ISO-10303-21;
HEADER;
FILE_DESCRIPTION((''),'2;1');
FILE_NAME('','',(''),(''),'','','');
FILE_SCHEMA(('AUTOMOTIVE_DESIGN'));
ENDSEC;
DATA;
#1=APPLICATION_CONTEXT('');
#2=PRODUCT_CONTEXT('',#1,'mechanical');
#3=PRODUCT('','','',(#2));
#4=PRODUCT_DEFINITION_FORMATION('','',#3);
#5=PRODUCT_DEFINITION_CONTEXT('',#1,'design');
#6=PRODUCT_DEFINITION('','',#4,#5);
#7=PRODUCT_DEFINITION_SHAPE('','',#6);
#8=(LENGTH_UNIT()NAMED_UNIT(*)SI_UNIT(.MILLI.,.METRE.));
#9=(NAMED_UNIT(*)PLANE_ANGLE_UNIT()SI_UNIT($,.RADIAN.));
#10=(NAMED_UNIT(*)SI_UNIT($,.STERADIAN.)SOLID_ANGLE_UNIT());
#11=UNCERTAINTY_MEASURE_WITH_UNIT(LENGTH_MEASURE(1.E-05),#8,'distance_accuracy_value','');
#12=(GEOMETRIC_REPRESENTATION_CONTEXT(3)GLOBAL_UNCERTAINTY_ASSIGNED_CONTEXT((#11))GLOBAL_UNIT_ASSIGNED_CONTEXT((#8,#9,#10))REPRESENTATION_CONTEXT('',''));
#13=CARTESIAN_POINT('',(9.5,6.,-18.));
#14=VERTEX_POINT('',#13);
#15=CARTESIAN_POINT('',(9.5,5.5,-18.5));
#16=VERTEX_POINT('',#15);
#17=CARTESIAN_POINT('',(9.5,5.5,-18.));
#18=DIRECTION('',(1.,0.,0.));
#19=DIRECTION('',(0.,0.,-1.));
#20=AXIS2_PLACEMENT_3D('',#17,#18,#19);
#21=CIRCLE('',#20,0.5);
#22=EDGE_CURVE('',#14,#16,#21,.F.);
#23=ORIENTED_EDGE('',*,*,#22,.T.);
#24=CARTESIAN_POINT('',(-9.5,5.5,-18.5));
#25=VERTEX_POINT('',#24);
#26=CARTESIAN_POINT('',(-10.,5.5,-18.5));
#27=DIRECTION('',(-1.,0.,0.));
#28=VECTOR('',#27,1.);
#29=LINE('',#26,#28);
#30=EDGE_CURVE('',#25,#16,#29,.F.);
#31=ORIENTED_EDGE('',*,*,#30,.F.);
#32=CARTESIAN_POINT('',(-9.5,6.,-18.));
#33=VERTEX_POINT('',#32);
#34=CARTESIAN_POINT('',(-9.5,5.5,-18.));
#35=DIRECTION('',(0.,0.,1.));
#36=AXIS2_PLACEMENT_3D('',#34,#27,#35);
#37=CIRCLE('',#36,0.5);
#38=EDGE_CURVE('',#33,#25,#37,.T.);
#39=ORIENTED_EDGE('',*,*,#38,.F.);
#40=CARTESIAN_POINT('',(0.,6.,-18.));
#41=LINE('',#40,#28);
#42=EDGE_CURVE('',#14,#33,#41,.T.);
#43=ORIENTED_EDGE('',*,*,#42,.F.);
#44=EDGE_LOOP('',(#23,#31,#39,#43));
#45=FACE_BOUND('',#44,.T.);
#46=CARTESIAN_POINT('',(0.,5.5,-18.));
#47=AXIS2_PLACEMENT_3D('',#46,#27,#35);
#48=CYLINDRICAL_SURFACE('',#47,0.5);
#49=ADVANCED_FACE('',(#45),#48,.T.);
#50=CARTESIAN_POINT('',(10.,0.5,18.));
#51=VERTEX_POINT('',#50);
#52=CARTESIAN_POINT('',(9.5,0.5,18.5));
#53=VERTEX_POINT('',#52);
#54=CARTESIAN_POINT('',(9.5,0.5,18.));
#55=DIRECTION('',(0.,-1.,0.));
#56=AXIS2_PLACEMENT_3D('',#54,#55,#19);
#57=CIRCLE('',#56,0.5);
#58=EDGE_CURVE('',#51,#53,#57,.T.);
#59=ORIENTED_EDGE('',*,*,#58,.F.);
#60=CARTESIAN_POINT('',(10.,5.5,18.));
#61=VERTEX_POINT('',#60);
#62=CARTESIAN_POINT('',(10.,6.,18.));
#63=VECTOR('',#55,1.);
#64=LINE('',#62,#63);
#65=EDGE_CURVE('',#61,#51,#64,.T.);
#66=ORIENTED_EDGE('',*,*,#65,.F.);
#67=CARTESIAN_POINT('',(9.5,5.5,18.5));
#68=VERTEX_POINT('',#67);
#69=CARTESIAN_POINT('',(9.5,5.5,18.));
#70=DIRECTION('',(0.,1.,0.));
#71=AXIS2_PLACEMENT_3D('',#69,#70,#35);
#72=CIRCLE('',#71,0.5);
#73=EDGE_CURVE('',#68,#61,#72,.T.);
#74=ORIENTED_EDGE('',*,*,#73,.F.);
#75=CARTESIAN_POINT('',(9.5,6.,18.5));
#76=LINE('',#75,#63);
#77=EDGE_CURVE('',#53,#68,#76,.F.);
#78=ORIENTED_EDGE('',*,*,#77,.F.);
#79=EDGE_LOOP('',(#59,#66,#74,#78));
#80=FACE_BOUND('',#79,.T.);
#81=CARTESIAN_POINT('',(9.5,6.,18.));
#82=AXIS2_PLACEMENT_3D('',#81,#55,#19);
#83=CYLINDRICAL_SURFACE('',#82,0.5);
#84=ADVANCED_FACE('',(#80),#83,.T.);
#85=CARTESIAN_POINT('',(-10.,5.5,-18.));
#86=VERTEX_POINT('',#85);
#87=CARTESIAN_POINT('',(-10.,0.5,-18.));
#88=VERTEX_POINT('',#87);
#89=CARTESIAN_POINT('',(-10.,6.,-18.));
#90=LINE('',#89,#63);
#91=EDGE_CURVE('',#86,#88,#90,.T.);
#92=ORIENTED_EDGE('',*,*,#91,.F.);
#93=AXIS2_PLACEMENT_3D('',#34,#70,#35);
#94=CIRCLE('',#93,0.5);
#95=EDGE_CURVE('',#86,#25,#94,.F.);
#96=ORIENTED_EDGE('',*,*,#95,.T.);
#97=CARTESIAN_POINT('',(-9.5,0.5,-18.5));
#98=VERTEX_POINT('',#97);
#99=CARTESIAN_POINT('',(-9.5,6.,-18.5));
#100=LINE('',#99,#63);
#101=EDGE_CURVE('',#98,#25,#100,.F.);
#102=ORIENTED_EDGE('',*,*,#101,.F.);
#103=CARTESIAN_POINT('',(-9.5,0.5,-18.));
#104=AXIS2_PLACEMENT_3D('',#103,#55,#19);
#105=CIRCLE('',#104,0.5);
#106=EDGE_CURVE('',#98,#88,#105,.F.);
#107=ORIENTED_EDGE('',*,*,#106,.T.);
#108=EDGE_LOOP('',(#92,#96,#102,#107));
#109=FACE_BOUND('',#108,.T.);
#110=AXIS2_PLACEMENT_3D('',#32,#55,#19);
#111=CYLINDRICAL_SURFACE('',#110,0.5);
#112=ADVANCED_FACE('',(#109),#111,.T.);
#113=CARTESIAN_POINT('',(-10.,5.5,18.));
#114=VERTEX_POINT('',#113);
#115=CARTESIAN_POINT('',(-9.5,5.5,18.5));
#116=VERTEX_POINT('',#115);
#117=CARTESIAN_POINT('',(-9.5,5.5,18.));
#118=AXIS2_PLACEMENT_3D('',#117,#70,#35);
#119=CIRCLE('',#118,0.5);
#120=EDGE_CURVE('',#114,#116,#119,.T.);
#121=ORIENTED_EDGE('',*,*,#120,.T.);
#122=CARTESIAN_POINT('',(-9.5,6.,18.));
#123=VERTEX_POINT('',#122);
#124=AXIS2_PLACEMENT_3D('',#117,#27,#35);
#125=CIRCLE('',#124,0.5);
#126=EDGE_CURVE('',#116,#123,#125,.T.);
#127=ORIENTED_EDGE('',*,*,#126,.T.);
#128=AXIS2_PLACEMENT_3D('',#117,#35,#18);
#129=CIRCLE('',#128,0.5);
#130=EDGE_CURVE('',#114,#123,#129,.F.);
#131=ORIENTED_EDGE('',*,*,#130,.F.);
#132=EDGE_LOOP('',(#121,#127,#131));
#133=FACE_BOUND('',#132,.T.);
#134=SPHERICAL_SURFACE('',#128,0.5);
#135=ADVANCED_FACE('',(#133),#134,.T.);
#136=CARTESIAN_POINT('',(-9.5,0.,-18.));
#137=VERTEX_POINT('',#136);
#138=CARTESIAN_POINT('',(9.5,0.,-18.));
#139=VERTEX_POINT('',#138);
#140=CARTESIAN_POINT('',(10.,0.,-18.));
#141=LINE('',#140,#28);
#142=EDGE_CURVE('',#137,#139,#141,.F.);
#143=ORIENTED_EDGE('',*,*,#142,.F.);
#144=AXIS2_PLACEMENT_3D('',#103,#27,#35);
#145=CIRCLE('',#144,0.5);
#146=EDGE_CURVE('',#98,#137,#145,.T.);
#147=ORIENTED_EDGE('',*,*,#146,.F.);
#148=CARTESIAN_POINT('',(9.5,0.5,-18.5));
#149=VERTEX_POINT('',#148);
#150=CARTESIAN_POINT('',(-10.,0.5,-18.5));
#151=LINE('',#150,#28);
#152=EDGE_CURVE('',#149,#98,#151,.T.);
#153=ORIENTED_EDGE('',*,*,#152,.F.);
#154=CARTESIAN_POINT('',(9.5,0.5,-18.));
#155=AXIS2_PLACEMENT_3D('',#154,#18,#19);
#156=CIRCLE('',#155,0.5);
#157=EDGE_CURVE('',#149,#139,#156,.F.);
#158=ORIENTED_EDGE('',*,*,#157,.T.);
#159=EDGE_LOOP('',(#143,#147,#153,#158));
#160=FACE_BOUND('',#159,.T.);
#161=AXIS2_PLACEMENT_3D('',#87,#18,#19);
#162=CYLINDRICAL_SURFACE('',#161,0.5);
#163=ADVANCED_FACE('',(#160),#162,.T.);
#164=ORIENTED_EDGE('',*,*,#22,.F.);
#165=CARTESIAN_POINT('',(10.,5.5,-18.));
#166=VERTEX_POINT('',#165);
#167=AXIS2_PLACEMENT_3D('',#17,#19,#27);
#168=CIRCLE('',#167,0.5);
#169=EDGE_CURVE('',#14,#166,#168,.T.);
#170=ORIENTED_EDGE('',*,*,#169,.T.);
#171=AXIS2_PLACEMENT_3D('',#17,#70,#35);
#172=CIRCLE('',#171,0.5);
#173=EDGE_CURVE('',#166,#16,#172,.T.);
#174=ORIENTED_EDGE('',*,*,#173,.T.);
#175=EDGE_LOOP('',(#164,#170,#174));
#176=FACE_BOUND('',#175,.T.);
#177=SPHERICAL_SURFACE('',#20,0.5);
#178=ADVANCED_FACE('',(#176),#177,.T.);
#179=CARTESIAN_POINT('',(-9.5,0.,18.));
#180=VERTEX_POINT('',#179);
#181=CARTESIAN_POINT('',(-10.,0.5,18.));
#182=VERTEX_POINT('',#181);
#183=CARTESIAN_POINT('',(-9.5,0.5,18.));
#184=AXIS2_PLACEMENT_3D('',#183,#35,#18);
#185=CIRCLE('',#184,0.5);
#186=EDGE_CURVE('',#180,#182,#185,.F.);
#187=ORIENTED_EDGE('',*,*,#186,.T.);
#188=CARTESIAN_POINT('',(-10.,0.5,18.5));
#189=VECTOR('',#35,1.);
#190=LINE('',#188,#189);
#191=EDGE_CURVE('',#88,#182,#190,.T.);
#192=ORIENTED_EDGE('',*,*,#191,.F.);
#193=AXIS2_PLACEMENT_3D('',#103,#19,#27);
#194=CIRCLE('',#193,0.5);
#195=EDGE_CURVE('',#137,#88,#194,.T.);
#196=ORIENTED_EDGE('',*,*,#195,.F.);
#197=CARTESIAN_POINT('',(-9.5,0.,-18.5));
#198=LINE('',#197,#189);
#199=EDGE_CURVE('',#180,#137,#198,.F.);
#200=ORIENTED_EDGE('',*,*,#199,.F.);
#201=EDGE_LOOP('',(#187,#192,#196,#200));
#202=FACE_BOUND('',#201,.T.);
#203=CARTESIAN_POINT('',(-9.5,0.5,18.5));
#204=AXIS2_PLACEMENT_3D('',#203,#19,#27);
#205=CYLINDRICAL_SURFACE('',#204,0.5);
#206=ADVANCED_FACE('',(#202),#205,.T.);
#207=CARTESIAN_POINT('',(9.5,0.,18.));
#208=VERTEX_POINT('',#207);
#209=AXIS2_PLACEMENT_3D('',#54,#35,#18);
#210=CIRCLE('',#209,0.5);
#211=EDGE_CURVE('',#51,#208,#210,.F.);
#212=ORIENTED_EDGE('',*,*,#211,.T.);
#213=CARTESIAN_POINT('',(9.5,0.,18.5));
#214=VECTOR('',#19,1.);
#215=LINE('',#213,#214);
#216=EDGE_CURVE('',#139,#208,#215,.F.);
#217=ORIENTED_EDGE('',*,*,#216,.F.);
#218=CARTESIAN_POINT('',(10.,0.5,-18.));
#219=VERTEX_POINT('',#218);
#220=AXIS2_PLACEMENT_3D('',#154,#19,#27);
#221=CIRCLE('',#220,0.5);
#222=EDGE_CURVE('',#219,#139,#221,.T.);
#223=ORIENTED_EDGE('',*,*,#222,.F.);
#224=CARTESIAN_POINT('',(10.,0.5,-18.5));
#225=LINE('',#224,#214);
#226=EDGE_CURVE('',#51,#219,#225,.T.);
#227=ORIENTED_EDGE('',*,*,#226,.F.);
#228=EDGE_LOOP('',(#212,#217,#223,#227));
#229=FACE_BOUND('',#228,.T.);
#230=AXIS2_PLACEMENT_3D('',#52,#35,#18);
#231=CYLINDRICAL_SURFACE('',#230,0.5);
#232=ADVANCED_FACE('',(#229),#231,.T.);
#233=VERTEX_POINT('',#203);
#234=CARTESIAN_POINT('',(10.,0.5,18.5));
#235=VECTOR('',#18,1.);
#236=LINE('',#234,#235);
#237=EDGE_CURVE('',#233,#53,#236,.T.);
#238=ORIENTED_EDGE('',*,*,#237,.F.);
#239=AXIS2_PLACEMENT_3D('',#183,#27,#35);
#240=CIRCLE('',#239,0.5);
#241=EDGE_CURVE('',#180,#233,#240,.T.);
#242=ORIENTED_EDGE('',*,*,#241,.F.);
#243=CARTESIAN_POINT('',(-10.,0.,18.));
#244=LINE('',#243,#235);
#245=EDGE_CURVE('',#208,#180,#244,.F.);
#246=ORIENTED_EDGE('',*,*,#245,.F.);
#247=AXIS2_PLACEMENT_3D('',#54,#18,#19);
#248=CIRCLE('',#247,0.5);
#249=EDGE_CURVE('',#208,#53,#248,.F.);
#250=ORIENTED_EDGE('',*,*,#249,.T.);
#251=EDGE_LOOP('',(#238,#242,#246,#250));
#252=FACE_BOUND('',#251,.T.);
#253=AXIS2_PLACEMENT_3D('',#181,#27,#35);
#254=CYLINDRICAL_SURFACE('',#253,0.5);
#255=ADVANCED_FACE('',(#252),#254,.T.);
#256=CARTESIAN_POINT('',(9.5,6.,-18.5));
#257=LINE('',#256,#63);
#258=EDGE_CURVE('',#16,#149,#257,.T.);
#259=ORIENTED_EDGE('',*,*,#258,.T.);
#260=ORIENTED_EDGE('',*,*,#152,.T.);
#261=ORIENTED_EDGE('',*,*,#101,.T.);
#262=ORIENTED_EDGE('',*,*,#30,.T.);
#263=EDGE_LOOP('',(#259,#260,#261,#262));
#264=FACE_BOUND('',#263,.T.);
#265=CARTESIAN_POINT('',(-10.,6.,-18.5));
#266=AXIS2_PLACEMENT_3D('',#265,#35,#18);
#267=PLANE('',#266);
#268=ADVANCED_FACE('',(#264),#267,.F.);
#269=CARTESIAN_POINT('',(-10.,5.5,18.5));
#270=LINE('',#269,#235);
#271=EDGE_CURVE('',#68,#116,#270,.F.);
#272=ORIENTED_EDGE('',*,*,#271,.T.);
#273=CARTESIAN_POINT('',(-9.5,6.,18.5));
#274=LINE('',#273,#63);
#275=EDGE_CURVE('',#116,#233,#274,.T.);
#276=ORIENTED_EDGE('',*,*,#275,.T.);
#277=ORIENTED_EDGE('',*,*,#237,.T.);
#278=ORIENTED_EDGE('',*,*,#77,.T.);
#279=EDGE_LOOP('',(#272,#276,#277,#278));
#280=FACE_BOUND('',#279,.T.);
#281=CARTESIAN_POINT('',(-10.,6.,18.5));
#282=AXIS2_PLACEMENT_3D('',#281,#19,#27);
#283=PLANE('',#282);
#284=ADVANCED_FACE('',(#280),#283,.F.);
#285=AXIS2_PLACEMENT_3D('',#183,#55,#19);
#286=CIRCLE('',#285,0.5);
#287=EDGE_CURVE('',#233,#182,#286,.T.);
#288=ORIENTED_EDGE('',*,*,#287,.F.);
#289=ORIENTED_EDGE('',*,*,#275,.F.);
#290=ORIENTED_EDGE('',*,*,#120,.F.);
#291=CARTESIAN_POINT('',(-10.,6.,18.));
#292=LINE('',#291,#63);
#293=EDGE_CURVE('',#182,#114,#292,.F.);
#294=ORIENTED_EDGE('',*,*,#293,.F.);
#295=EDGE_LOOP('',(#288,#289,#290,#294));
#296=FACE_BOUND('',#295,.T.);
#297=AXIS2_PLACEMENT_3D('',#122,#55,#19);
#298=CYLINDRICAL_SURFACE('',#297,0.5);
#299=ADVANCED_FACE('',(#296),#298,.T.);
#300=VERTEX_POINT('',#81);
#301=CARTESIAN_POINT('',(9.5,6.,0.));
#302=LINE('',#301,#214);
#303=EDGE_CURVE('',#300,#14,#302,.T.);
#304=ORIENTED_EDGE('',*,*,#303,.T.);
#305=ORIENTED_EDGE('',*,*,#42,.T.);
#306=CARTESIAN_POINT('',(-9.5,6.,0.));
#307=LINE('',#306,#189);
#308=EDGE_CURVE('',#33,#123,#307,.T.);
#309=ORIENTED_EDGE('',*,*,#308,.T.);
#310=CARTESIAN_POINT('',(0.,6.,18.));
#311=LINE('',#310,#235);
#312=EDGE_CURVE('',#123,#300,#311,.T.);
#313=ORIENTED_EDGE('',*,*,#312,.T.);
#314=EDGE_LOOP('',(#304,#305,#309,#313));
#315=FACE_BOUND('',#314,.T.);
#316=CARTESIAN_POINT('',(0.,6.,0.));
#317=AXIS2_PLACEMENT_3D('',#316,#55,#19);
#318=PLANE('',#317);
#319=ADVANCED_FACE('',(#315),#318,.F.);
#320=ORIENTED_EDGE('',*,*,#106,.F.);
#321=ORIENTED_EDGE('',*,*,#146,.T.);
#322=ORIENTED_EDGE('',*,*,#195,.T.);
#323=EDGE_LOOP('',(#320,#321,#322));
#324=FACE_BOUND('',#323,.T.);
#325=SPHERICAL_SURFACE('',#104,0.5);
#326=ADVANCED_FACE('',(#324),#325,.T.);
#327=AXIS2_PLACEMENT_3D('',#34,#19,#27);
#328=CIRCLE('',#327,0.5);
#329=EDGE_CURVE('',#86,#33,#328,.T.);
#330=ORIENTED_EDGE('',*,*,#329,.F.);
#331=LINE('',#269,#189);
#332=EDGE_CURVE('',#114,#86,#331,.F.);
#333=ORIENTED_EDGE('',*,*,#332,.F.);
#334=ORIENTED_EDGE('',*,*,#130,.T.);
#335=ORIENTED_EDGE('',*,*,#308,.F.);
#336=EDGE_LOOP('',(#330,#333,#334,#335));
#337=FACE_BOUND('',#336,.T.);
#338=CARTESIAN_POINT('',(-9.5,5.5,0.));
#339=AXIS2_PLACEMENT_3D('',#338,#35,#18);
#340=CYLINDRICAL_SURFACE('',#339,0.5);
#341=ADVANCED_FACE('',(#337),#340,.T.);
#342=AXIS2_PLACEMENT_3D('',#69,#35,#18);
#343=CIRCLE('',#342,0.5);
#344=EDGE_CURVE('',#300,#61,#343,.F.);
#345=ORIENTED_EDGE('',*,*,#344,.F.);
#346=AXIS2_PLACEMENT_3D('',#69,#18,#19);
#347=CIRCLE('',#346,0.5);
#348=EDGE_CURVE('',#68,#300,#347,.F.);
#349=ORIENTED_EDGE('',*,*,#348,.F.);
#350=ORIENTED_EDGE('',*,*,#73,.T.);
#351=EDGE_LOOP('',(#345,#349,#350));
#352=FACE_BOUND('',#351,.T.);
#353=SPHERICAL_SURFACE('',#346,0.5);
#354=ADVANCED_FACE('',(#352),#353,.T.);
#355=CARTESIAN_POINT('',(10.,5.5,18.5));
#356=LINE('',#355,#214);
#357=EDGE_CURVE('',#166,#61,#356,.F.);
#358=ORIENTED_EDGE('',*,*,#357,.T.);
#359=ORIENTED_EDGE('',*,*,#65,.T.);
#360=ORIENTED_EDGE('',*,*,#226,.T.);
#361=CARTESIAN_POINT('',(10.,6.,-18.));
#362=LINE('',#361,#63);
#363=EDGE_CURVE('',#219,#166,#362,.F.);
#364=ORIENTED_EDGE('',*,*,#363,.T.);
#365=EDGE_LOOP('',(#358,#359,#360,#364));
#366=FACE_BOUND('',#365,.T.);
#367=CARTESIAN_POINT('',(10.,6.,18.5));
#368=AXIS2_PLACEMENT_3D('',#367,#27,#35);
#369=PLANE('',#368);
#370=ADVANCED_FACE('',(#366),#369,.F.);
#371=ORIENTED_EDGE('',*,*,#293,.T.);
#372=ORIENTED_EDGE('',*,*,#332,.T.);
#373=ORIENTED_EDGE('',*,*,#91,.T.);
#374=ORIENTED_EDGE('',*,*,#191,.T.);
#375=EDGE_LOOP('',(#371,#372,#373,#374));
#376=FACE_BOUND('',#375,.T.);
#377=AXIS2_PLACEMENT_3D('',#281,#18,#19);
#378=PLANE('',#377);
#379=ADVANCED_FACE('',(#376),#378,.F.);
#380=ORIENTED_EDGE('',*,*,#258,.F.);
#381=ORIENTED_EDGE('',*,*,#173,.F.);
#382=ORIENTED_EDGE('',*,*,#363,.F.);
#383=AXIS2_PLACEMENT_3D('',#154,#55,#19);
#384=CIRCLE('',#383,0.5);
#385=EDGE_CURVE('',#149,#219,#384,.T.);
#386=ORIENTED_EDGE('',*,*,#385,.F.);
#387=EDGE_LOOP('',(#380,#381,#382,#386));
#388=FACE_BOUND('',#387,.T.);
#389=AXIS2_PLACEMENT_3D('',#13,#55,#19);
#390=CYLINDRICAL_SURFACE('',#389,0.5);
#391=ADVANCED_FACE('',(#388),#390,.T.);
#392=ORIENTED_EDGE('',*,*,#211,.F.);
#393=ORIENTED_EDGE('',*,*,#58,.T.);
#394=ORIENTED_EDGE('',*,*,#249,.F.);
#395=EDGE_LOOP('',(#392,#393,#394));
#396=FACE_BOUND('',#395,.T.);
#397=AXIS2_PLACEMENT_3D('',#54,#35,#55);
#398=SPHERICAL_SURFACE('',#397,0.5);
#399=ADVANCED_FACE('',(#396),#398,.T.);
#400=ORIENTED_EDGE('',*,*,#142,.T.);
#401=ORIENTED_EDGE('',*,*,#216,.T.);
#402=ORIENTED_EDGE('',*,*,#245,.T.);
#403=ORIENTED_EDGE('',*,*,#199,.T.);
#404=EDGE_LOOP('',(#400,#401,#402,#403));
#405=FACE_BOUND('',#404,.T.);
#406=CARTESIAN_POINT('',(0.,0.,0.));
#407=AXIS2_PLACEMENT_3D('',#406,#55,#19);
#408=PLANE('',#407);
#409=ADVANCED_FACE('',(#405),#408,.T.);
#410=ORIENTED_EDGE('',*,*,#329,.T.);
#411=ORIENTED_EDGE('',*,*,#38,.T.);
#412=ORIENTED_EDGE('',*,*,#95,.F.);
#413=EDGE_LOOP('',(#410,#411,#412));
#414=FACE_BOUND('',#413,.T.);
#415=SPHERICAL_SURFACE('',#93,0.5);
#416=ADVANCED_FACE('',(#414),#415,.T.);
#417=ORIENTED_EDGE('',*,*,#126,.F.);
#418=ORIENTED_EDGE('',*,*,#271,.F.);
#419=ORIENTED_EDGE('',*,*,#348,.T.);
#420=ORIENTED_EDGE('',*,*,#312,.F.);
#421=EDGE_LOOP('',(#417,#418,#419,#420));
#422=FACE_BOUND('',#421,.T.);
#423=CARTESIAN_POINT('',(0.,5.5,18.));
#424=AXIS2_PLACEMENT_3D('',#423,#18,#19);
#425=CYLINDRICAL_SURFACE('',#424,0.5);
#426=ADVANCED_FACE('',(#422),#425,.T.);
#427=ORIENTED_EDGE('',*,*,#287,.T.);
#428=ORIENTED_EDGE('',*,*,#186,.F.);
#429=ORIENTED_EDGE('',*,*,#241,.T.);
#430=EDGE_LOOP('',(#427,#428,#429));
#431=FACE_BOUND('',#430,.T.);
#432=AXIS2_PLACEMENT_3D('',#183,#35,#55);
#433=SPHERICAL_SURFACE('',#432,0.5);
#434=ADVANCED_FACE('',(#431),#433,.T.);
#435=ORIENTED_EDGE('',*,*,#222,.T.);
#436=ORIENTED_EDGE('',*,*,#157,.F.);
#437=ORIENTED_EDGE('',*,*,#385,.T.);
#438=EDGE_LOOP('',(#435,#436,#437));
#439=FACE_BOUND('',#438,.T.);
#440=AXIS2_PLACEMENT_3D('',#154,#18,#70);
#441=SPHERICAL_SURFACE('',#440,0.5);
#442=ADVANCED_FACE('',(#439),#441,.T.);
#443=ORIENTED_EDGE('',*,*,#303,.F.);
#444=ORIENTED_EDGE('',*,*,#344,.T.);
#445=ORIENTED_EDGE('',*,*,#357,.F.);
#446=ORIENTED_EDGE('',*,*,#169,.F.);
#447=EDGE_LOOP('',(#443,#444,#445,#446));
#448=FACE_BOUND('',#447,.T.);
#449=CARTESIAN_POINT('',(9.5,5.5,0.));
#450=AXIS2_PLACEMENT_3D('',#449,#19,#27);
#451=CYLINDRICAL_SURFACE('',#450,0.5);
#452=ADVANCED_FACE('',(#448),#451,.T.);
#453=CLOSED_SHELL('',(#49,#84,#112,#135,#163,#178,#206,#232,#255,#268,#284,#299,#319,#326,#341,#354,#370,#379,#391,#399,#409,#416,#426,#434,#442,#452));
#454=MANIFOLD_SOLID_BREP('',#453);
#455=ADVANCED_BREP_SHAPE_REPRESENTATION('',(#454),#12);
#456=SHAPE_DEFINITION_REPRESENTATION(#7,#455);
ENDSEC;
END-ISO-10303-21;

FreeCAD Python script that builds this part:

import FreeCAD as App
import Part
import Sketcher

V = App.Vector

doc = App.newDocument("Part")
params = doc.addObject("Spreadsheet::Sheet", "Params")
for row, (alias, value) in enumerate([
    ("sketch1_width", "20 mm"),
    ("sketch1_height", "37 mm"),
    ("pad1_length", "6 mm"),
    ("fillet_radius", "0.5 mm"),
], start=1):
    params.set(f"A{row}", alias)
    params.set(f"B{row}", "=" + value)
    params.setAlias(f"B{row}", alias)

body = doc.addObject("PartDesign::Body", "Body")

sketch1 = body.newObject("Sketcher::SketchObject", "Sketch")
sketch1.AttachmentSupport = (doc.getObject("XZ_Plane"), [""])
sketch1.MapMode = "FlatFace"
sketch1.addGeometry([
    Part.LineSegment(V(-10, -18.5, 0), V(-10, 18.5, 0)),
    Part.LineSegment(V(-10, 18.5, 0), V(10, 18.5, 0)),
    Part.LineSegment(V(10, 18.5, 0), V(10, -18.5, 0)),
    Part.LineSegment(V(10, -18.5, 0), V(-10, -18.5, 0)),
], False)
sketch1.addConstraint([
    Sketcher.Constraint("Coincident", 0, 2, 1, 1),
    Sketcher.Constraint("Coincident", 1, 2, 2, 1),
    Sketcher.Constraint("Coincident", 2, 2, 3, 1),
    Sketcher.Constraint("Coincident", 3, 2, 0, 1),
    Sketcher.Constraint("Vertical", 0),
    Sketcher.Constraint("Horizontal", 1),
    Sketcher.Constraint("Vertical", 2),
    Sketcher.Constraint("Horizontal", 3),
    Sketcher.Constraint("Symmetric", 0, 2, 2, 2, -1, 1),
    Sketcher.Constraint("DistanceX", 1, 1, 1, 2, 20.0),
    Sketcher.Constraint("DistanceY", 0, 1, 0, 2, 37.0),
])
sketch1.setExpression("Constraints[9]", "Params.sketch1_width")
sketch1.setExpression("Constraints[10]", "Params.sketch1_height")
pad1 = body.newObject("PartDesign::Pad", "Pad")
pad1.Profile = sketch1
pad1.setExpression("Length", "Params.pad1_length")
pad1.Reversed = True
doc.recompute()

fillet = body.newObject("PartDesign::Fillet", "Fillet")
fillet.Base = (pad1, ["Edge1"])
fillet.UseAllEdges = True
fillet.setExpression("Radius", "Params.fillet_radius")

doc.recompute()
